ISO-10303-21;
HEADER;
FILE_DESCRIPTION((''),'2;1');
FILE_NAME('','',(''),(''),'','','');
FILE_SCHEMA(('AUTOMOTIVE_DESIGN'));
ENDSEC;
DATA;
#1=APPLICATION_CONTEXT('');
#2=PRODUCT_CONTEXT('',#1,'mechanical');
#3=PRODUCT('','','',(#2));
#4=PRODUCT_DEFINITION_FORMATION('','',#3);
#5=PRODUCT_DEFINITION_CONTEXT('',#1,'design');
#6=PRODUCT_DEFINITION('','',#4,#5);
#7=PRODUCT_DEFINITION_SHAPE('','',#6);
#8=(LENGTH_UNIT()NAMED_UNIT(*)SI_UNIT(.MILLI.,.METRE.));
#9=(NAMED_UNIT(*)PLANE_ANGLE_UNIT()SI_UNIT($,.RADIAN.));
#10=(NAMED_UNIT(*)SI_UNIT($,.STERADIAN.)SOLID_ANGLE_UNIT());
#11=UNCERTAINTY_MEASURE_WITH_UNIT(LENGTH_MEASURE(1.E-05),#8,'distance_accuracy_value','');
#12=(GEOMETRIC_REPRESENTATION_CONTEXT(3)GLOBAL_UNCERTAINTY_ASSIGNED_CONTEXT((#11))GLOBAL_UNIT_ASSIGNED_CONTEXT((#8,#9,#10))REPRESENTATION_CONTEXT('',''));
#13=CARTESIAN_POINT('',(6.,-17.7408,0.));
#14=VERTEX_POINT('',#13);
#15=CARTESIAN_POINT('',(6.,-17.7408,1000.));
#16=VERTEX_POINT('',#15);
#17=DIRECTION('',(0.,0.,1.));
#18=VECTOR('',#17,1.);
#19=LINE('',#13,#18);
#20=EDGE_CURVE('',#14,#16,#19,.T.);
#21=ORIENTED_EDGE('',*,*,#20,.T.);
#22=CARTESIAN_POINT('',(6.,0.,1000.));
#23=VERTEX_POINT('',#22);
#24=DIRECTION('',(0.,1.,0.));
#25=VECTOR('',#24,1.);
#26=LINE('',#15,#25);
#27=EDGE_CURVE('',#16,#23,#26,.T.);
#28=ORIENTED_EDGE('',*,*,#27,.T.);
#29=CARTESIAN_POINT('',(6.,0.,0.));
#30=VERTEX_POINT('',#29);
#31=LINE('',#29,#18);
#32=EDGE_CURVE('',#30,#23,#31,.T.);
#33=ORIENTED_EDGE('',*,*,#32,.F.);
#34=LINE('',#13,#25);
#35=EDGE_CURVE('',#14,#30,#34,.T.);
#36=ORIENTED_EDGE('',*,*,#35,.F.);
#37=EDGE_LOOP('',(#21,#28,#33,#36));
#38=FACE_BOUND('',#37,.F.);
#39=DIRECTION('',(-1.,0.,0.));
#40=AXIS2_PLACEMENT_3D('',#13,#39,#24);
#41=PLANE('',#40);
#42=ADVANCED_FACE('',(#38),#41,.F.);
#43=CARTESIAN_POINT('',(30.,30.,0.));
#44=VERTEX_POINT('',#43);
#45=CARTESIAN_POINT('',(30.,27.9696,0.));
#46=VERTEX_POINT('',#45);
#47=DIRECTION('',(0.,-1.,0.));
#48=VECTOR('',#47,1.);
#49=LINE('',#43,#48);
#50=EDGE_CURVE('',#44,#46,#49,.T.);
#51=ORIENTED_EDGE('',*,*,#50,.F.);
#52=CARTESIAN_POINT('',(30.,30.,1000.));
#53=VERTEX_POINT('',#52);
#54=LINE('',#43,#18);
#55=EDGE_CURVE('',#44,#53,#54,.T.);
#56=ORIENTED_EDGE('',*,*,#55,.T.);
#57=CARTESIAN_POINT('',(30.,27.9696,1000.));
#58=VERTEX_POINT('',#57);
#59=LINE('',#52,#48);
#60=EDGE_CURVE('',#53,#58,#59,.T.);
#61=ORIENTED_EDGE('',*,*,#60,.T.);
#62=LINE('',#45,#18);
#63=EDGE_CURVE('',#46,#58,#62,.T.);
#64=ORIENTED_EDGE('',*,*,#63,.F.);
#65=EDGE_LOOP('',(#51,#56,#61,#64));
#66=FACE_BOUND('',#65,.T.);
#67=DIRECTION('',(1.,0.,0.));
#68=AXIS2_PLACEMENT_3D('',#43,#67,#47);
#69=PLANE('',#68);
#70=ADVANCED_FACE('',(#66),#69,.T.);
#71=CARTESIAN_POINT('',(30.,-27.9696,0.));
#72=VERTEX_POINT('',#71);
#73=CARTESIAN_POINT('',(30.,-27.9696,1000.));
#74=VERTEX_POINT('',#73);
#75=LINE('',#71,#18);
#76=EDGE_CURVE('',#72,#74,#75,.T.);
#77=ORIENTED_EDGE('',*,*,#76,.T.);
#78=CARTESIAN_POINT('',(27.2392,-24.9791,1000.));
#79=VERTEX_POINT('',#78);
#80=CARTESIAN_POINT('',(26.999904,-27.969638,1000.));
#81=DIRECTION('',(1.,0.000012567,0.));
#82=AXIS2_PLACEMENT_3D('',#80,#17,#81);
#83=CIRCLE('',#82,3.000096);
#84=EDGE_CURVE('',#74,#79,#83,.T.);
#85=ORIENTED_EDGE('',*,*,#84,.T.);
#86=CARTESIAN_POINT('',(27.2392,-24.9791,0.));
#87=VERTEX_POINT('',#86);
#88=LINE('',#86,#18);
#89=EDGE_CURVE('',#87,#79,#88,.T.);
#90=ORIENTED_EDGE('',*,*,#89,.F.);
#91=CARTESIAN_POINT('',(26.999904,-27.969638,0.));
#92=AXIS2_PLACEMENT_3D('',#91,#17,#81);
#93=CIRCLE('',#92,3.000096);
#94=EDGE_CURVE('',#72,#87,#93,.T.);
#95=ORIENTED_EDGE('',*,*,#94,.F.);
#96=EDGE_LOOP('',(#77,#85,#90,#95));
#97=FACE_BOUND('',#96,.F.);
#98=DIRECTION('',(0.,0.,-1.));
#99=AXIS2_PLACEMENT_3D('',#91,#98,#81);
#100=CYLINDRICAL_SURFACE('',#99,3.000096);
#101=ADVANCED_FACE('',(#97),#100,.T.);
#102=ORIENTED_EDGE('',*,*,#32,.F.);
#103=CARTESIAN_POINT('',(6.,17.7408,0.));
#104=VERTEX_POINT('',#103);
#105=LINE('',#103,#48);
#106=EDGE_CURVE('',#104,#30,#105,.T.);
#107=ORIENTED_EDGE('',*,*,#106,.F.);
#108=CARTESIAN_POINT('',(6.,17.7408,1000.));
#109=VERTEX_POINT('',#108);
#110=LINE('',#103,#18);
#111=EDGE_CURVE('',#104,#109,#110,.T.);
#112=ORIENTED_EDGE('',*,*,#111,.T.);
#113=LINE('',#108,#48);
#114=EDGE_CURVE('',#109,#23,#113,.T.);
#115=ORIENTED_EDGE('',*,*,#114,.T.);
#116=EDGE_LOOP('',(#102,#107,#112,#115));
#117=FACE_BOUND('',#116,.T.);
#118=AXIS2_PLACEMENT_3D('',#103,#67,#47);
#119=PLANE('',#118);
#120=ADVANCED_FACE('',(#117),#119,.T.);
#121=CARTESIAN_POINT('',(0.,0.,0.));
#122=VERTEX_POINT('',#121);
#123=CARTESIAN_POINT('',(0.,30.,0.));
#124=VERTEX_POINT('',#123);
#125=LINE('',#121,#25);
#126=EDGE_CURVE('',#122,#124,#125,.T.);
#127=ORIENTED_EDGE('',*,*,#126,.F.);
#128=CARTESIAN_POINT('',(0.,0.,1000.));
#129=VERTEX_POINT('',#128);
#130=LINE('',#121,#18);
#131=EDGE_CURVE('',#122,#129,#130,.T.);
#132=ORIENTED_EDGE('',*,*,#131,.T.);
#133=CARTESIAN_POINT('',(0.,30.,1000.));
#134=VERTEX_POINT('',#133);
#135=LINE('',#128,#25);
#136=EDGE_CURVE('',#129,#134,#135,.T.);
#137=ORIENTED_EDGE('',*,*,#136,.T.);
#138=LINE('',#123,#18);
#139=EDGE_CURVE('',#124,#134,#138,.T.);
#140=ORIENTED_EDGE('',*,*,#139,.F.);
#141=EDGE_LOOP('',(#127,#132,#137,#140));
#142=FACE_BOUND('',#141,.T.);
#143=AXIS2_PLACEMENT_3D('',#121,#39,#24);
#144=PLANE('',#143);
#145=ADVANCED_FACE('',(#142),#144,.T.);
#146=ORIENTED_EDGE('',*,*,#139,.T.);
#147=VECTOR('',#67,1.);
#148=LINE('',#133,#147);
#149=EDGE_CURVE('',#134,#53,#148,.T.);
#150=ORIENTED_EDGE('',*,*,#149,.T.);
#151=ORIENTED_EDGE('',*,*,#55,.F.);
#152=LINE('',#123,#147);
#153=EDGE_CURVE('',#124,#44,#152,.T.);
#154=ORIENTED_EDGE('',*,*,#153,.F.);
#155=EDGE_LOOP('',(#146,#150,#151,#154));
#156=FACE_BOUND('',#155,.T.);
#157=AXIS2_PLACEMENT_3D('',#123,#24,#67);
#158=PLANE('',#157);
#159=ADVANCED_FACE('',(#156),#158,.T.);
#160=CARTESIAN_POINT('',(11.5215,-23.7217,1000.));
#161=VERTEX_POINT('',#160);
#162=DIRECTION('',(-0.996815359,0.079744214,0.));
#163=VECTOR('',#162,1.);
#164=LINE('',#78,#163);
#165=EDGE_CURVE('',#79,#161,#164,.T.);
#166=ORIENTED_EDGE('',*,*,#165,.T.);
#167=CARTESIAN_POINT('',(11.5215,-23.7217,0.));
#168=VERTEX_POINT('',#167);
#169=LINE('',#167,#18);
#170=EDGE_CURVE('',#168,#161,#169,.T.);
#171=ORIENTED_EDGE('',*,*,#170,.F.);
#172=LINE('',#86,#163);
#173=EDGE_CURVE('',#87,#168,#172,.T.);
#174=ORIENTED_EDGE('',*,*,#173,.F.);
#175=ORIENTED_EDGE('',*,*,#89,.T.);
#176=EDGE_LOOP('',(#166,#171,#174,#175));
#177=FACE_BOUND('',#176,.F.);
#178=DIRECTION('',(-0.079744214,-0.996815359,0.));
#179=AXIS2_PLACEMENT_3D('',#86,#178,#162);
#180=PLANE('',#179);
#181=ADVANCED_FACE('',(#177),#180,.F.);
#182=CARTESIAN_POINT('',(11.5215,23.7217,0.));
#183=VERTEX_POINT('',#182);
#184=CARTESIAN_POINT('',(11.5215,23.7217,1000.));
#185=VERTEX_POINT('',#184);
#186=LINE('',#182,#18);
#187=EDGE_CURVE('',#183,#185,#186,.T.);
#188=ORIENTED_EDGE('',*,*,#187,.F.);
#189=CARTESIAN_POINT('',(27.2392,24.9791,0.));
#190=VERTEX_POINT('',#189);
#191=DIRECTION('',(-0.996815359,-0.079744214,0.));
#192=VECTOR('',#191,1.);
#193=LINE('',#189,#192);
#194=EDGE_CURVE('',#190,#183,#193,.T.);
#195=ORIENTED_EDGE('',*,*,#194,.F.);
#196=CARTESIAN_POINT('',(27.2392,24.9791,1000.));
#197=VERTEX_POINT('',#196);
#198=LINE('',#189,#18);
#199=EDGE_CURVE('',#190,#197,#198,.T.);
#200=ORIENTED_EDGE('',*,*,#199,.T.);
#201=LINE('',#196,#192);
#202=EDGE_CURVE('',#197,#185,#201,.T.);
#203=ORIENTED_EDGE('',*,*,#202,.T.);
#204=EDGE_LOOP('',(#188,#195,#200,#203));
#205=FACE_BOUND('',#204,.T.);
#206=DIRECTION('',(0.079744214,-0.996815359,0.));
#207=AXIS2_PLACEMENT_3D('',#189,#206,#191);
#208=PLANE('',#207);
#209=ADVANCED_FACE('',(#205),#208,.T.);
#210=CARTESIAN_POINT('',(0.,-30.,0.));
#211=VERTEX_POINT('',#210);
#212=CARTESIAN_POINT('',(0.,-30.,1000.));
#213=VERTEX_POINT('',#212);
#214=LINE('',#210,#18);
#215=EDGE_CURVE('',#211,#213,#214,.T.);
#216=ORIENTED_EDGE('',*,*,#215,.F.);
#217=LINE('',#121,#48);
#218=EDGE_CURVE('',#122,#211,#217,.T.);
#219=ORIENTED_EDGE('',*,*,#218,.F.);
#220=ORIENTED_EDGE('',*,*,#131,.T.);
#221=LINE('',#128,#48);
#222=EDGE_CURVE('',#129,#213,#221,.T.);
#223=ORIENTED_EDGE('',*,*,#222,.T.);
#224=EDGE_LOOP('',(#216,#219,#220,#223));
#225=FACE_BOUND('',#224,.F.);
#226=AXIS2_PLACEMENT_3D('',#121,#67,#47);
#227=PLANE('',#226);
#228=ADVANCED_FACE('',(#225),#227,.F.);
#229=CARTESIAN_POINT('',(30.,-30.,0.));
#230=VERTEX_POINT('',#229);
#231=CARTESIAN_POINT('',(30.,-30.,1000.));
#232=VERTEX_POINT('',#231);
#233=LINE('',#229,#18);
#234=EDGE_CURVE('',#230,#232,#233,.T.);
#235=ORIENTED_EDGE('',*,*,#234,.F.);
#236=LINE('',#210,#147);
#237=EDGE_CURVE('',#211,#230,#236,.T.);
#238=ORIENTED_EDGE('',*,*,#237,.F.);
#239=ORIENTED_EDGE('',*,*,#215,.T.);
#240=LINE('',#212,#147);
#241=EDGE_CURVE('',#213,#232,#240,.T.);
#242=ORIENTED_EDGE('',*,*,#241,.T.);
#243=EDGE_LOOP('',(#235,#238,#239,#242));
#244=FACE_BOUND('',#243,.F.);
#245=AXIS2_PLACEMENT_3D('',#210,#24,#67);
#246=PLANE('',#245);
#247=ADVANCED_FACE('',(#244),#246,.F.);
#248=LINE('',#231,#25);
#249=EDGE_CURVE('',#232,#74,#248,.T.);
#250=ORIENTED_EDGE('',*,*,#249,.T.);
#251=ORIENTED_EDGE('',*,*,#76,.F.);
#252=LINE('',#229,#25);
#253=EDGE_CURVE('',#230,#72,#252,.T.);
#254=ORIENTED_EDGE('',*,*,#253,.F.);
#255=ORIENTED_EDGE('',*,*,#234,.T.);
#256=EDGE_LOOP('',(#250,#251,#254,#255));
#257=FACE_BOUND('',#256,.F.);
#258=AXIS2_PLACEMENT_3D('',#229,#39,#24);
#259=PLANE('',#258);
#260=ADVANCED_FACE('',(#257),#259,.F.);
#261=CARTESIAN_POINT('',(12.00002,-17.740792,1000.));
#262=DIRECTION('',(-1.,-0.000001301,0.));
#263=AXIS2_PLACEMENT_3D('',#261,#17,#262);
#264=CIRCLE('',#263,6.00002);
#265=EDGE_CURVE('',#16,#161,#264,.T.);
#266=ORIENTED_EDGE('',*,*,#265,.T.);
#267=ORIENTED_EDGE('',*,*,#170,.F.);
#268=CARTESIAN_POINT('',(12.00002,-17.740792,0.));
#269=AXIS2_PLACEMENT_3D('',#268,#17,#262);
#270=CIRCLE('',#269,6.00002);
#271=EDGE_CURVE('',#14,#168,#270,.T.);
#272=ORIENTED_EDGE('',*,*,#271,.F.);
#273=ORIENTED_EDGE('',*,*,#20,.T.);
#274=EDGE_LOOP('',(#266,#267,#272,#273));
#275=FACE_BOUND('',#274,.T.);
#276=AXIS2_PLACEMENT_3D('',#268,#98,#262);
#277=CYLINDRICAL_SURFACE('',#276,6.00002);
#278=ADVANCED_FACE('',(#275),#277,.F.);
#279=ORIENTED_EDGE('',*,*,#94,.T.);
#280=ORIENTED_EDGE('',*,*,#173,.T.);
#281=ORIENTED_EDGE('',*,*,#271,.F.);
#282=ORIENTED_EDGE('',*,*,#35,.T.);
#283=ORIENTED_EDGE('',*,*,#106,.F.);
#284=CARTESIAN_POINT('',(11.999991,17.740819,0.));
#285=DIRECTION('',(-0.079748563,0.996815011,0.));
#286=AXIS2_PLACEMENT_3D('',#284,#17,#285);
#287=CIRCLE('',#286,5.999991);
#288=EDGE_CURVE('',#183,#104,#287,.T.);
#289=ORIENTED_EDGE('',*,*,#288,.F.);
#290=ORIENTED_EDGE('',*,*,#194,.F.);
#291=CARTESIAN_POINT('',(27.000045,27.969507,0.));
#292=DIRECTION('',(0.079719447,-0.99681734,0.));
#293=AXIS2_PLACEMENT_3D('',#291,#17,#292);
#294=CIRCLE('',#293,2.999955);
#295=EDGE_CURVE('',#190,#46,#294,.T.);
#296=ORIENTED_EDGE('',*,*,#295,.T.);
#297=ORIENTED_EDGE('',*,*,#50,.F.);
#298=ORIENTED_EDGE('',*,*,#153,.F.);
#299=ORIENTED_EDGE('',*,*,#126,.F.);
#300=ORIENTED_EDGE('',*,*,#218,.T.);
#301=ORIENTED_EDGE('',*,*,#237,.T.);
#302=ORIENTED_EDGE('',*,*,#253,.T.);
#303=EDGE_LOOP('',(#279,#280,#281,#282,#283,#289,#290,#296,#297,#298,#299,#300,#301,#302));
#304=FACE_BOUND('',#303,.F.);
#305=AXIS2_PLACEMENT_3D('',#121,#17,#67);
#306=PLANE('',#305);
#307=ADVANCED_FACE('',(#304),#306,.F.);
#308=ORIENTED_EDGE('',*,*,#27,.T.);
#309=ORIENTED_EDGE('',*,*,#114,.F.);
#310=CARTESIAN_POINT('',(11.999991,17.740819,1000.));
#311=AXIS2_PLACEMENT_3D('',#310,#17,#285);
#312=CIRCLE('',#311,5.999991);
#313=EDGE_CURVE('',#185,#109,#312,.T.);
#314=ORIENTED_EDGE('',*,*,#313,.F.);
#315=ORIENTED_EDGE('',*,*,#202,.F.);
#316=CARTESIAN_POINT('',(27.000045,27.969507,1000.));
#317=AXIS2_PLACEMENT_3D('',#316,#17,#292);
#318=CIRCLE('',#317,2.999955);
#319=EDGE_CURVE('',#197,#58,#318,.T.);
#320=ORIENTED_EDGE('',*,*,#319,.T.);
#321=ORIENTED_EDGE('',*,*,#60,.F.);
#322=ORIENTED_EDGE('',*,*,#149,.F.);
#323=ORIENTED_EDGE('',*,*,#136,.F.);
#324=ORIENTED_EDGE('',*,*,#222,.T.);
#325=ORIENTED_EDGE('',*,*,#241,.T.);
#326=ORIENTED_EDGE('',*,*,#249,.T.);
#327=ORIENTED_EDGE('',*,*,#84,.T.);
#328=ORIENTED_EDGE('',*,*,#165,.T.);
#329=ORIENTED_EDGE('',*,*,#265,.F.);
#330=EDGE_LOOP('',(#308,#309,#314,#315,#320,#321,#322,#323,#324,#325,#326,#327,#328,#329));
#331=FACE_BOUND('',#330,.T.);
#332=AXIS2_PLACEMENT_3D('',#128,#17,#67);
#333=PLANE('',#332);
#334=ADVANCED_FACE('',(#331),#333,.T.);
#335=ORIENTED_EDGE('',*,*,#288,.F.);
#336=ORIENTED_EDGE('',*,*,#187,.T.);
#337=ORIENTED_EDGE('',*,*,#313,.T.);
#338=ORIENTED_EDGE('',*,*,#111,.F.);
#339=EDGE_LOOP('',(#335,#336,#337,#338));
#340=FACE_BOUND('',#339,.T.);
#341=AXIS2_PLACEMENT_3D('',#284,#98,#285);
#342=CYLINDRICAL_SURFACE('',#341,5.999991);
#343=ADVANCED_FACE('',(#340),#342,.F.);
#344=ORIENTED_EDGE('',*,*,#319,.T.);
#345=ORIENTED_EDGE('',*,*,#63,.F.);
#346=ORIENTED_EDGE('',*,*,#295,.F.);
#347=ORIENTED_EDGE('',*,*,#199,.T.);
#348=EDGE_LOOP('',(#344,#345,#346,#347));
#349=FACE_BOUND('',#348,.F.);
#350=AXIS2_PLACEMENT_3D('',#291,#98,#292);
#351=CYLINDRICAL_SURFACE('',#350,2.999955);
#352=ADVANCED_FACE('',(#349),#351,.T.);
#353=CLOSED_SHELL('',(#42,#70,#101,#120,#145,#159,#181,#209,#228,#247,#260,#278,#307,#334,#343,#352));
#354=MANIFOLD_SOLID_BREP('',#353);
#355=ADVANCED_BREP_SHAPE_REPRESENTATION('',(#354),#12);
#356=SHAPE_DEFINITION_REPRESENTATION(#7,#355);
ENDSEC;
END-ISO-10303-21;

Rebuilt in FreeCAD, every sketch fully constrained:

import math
import FreeCAD as App
import Part
import Sketcher

doc = App.newDocument("Part")
body = doc.addObject("PartDesign::Body", "Body")

# Sketch on XY plane
sketch1 = body.newObject("Sketcher::SketchObject", "Sketch")
sketch1.AttachmentSupport = (doc.getObject("XY_Plane"), [""])
sketch1.MapMode = "FlatFace"
sketch1.addGeometry(Part.LineSegment(App.Vector(0, 30, 0), App.Vector(0, -30, 0)), False)
sketch1.addGeometry(Part.LineSegment(App.Vector(0, -30, 0), App.Vector(30, -30, 0)), False)
sketch1.addGeometry(Part.LineSegment(App.Vector(30, -30, 0), App.Vector(30, -28, 0)), False)
sketch1.addGeometry(Part.ArcOfCircle(Part.Circle(App.Vector(27, -28, 0), App.Vector(0, 0, 1), 3), math.radians(0), math.radians(85)), False)
sketch1.addGeometry(Part.LineSegment(App.Vector(27.2, -25, 0), App.Vector(11.5, -23.7, 0)), False)
sketch1.addGeometry(Part.ArcOfCircle(Part.Circle(App.Vector(12, -17.7, 0), App.Vector(0, 0, 1), 6), math.radians(180), math.radians(265)), False)
sketch1.addGeometry(Part.LineSegment(App.Vector(6, -17.7, 0), App.Vector(6, 17.7, 0)), False)
sketch1.addGeometry(Part.ArcOfCircle(Part.Circle(App.Vector(12, 17.7, 0), App.Vector(0, 0, 1), 6), math.radians(95), math.radians(180)), False)
sketch1.addGeometry(Part.LineSegment(App.Vector(11.5, 23.7, 0), App.Vector(27.2, 25, 0)), False)
sketch1.addGeometry(Part.ArcOfCircle(Part.Circle(App.Vector(27, 28, 0), App.Vector(0, 0, 1), 3), math.radians(-85), math.radians(0)), False)
sketch1.addGeometry(Part.LineSegment(App.Vector(30, 28, 0), App.Vector(30, 30, 0)), False)
sketch1.addGeometry(Part.LineSegment(App.Vector(30, 30, 0), App.Vector(0, 30, 0)), False)
sketch1.addConstraint(Sketcher.Constraint("Coincident", 0, 2, 1, 1))
sketch1.addConstraint(Sketcher.Constraint("Coincident", 1, 2, 2, 1))
sketch1.addConstraint(Sketcher.Constraint("Tangent", 2, 2, 3, 1))
sketch1.addConstraint(Sketcher.Constraint("Tangent", 3, 2, 4, 1))
sketch1.addConstraint(Sketcher.Constraint("Tangent", 4, 2, 5, 2))
sketch1.addConstraint(Sketcher.Constraint("Tangent", 5, 1, 6, 1))
sketch1.addConstraint(Sketcher.Constraint("Tangent", 6, 2, 7, 2))
sketch1.addConstraint(Sketcher.Constraint("Tangent", 7, 1, 8, 1))
sketch1.addConstraint(Sketcher.Constraint("Tangent", 8, 2, 9, 1))
sketch1.addConstraint(Sketcher.Constraint("Tangent", 9, 2, 10, 1))
sketch1.addConstraint(Sketcher.Constraint("Coincident", 10, 2, 11, 1))
sketch1.addConstraint(Sketcher.Constraint("Coincident", 11, 2, 0, 1))
sketch1.addConstraint(Sketcher.Constraint("Vertical", 0))
sketch1.addConstraint(Sketcher.Constraint("Horizontal", 1))
sketch1.addConstraint(Sketcher.Constraint("Vertical", 2))
sketch1.addConstraint(Sketcher.Constraint("Vertical", 6))
sketch1.addConstraint(Sketcher.Constraint("Vertical", 10))
sketch1.addConstraint(Sketcher.Constraint("Horizontal", 11))
sketch1.addConstraint(Sketcher.Constraint("Equal", 5, 7))
sketch1.addConstraint(Sketcher.Constraint("Equal", 3, 9))
sketch1.addConstraint(Sketcher.Constraint("Symmetric", 0, 2, 11, 2, -1, 1))
sketch1.addConstraint(Sketcher.Constraint("Symmetric", 3, 3, 9, 3, -1))
sketch1.addConstraint(Sketcher.Constraint("Vertical", 4, 2, 7, 1))
sketch1.addConstraint(Sketcher.Constraint("Radius", 3, 3.0))
sketch1.addConstraint(Sketcher.Constraint("Radius", 5, 6.0))
sketch1.addConstraint(Sketcher.Constraint("DistanceX", 1, 1, 1, 2, 30.0))
sketch1.addConstraint(Sketcher.Constraint("DistanceY", 0, 2, -1, 1, 30.0))
sketch1.addConstraint(Sketcher.Constraint("DistanceX", -1, 1, 5, 1, 6.0))
sketch1.addConstraint(Sketcher.Constraint("DistanceY", 5, 3, 8, 2, 42.72))
sketch1.addConstraint(Sketcher.Constraint("Distance", 4, 15.768))
pad1 = body.newObject("PartDesign::Pad", "Pad")
pad1.Profile = sketch1
pad1.Length = 1000

doc.recompute()
